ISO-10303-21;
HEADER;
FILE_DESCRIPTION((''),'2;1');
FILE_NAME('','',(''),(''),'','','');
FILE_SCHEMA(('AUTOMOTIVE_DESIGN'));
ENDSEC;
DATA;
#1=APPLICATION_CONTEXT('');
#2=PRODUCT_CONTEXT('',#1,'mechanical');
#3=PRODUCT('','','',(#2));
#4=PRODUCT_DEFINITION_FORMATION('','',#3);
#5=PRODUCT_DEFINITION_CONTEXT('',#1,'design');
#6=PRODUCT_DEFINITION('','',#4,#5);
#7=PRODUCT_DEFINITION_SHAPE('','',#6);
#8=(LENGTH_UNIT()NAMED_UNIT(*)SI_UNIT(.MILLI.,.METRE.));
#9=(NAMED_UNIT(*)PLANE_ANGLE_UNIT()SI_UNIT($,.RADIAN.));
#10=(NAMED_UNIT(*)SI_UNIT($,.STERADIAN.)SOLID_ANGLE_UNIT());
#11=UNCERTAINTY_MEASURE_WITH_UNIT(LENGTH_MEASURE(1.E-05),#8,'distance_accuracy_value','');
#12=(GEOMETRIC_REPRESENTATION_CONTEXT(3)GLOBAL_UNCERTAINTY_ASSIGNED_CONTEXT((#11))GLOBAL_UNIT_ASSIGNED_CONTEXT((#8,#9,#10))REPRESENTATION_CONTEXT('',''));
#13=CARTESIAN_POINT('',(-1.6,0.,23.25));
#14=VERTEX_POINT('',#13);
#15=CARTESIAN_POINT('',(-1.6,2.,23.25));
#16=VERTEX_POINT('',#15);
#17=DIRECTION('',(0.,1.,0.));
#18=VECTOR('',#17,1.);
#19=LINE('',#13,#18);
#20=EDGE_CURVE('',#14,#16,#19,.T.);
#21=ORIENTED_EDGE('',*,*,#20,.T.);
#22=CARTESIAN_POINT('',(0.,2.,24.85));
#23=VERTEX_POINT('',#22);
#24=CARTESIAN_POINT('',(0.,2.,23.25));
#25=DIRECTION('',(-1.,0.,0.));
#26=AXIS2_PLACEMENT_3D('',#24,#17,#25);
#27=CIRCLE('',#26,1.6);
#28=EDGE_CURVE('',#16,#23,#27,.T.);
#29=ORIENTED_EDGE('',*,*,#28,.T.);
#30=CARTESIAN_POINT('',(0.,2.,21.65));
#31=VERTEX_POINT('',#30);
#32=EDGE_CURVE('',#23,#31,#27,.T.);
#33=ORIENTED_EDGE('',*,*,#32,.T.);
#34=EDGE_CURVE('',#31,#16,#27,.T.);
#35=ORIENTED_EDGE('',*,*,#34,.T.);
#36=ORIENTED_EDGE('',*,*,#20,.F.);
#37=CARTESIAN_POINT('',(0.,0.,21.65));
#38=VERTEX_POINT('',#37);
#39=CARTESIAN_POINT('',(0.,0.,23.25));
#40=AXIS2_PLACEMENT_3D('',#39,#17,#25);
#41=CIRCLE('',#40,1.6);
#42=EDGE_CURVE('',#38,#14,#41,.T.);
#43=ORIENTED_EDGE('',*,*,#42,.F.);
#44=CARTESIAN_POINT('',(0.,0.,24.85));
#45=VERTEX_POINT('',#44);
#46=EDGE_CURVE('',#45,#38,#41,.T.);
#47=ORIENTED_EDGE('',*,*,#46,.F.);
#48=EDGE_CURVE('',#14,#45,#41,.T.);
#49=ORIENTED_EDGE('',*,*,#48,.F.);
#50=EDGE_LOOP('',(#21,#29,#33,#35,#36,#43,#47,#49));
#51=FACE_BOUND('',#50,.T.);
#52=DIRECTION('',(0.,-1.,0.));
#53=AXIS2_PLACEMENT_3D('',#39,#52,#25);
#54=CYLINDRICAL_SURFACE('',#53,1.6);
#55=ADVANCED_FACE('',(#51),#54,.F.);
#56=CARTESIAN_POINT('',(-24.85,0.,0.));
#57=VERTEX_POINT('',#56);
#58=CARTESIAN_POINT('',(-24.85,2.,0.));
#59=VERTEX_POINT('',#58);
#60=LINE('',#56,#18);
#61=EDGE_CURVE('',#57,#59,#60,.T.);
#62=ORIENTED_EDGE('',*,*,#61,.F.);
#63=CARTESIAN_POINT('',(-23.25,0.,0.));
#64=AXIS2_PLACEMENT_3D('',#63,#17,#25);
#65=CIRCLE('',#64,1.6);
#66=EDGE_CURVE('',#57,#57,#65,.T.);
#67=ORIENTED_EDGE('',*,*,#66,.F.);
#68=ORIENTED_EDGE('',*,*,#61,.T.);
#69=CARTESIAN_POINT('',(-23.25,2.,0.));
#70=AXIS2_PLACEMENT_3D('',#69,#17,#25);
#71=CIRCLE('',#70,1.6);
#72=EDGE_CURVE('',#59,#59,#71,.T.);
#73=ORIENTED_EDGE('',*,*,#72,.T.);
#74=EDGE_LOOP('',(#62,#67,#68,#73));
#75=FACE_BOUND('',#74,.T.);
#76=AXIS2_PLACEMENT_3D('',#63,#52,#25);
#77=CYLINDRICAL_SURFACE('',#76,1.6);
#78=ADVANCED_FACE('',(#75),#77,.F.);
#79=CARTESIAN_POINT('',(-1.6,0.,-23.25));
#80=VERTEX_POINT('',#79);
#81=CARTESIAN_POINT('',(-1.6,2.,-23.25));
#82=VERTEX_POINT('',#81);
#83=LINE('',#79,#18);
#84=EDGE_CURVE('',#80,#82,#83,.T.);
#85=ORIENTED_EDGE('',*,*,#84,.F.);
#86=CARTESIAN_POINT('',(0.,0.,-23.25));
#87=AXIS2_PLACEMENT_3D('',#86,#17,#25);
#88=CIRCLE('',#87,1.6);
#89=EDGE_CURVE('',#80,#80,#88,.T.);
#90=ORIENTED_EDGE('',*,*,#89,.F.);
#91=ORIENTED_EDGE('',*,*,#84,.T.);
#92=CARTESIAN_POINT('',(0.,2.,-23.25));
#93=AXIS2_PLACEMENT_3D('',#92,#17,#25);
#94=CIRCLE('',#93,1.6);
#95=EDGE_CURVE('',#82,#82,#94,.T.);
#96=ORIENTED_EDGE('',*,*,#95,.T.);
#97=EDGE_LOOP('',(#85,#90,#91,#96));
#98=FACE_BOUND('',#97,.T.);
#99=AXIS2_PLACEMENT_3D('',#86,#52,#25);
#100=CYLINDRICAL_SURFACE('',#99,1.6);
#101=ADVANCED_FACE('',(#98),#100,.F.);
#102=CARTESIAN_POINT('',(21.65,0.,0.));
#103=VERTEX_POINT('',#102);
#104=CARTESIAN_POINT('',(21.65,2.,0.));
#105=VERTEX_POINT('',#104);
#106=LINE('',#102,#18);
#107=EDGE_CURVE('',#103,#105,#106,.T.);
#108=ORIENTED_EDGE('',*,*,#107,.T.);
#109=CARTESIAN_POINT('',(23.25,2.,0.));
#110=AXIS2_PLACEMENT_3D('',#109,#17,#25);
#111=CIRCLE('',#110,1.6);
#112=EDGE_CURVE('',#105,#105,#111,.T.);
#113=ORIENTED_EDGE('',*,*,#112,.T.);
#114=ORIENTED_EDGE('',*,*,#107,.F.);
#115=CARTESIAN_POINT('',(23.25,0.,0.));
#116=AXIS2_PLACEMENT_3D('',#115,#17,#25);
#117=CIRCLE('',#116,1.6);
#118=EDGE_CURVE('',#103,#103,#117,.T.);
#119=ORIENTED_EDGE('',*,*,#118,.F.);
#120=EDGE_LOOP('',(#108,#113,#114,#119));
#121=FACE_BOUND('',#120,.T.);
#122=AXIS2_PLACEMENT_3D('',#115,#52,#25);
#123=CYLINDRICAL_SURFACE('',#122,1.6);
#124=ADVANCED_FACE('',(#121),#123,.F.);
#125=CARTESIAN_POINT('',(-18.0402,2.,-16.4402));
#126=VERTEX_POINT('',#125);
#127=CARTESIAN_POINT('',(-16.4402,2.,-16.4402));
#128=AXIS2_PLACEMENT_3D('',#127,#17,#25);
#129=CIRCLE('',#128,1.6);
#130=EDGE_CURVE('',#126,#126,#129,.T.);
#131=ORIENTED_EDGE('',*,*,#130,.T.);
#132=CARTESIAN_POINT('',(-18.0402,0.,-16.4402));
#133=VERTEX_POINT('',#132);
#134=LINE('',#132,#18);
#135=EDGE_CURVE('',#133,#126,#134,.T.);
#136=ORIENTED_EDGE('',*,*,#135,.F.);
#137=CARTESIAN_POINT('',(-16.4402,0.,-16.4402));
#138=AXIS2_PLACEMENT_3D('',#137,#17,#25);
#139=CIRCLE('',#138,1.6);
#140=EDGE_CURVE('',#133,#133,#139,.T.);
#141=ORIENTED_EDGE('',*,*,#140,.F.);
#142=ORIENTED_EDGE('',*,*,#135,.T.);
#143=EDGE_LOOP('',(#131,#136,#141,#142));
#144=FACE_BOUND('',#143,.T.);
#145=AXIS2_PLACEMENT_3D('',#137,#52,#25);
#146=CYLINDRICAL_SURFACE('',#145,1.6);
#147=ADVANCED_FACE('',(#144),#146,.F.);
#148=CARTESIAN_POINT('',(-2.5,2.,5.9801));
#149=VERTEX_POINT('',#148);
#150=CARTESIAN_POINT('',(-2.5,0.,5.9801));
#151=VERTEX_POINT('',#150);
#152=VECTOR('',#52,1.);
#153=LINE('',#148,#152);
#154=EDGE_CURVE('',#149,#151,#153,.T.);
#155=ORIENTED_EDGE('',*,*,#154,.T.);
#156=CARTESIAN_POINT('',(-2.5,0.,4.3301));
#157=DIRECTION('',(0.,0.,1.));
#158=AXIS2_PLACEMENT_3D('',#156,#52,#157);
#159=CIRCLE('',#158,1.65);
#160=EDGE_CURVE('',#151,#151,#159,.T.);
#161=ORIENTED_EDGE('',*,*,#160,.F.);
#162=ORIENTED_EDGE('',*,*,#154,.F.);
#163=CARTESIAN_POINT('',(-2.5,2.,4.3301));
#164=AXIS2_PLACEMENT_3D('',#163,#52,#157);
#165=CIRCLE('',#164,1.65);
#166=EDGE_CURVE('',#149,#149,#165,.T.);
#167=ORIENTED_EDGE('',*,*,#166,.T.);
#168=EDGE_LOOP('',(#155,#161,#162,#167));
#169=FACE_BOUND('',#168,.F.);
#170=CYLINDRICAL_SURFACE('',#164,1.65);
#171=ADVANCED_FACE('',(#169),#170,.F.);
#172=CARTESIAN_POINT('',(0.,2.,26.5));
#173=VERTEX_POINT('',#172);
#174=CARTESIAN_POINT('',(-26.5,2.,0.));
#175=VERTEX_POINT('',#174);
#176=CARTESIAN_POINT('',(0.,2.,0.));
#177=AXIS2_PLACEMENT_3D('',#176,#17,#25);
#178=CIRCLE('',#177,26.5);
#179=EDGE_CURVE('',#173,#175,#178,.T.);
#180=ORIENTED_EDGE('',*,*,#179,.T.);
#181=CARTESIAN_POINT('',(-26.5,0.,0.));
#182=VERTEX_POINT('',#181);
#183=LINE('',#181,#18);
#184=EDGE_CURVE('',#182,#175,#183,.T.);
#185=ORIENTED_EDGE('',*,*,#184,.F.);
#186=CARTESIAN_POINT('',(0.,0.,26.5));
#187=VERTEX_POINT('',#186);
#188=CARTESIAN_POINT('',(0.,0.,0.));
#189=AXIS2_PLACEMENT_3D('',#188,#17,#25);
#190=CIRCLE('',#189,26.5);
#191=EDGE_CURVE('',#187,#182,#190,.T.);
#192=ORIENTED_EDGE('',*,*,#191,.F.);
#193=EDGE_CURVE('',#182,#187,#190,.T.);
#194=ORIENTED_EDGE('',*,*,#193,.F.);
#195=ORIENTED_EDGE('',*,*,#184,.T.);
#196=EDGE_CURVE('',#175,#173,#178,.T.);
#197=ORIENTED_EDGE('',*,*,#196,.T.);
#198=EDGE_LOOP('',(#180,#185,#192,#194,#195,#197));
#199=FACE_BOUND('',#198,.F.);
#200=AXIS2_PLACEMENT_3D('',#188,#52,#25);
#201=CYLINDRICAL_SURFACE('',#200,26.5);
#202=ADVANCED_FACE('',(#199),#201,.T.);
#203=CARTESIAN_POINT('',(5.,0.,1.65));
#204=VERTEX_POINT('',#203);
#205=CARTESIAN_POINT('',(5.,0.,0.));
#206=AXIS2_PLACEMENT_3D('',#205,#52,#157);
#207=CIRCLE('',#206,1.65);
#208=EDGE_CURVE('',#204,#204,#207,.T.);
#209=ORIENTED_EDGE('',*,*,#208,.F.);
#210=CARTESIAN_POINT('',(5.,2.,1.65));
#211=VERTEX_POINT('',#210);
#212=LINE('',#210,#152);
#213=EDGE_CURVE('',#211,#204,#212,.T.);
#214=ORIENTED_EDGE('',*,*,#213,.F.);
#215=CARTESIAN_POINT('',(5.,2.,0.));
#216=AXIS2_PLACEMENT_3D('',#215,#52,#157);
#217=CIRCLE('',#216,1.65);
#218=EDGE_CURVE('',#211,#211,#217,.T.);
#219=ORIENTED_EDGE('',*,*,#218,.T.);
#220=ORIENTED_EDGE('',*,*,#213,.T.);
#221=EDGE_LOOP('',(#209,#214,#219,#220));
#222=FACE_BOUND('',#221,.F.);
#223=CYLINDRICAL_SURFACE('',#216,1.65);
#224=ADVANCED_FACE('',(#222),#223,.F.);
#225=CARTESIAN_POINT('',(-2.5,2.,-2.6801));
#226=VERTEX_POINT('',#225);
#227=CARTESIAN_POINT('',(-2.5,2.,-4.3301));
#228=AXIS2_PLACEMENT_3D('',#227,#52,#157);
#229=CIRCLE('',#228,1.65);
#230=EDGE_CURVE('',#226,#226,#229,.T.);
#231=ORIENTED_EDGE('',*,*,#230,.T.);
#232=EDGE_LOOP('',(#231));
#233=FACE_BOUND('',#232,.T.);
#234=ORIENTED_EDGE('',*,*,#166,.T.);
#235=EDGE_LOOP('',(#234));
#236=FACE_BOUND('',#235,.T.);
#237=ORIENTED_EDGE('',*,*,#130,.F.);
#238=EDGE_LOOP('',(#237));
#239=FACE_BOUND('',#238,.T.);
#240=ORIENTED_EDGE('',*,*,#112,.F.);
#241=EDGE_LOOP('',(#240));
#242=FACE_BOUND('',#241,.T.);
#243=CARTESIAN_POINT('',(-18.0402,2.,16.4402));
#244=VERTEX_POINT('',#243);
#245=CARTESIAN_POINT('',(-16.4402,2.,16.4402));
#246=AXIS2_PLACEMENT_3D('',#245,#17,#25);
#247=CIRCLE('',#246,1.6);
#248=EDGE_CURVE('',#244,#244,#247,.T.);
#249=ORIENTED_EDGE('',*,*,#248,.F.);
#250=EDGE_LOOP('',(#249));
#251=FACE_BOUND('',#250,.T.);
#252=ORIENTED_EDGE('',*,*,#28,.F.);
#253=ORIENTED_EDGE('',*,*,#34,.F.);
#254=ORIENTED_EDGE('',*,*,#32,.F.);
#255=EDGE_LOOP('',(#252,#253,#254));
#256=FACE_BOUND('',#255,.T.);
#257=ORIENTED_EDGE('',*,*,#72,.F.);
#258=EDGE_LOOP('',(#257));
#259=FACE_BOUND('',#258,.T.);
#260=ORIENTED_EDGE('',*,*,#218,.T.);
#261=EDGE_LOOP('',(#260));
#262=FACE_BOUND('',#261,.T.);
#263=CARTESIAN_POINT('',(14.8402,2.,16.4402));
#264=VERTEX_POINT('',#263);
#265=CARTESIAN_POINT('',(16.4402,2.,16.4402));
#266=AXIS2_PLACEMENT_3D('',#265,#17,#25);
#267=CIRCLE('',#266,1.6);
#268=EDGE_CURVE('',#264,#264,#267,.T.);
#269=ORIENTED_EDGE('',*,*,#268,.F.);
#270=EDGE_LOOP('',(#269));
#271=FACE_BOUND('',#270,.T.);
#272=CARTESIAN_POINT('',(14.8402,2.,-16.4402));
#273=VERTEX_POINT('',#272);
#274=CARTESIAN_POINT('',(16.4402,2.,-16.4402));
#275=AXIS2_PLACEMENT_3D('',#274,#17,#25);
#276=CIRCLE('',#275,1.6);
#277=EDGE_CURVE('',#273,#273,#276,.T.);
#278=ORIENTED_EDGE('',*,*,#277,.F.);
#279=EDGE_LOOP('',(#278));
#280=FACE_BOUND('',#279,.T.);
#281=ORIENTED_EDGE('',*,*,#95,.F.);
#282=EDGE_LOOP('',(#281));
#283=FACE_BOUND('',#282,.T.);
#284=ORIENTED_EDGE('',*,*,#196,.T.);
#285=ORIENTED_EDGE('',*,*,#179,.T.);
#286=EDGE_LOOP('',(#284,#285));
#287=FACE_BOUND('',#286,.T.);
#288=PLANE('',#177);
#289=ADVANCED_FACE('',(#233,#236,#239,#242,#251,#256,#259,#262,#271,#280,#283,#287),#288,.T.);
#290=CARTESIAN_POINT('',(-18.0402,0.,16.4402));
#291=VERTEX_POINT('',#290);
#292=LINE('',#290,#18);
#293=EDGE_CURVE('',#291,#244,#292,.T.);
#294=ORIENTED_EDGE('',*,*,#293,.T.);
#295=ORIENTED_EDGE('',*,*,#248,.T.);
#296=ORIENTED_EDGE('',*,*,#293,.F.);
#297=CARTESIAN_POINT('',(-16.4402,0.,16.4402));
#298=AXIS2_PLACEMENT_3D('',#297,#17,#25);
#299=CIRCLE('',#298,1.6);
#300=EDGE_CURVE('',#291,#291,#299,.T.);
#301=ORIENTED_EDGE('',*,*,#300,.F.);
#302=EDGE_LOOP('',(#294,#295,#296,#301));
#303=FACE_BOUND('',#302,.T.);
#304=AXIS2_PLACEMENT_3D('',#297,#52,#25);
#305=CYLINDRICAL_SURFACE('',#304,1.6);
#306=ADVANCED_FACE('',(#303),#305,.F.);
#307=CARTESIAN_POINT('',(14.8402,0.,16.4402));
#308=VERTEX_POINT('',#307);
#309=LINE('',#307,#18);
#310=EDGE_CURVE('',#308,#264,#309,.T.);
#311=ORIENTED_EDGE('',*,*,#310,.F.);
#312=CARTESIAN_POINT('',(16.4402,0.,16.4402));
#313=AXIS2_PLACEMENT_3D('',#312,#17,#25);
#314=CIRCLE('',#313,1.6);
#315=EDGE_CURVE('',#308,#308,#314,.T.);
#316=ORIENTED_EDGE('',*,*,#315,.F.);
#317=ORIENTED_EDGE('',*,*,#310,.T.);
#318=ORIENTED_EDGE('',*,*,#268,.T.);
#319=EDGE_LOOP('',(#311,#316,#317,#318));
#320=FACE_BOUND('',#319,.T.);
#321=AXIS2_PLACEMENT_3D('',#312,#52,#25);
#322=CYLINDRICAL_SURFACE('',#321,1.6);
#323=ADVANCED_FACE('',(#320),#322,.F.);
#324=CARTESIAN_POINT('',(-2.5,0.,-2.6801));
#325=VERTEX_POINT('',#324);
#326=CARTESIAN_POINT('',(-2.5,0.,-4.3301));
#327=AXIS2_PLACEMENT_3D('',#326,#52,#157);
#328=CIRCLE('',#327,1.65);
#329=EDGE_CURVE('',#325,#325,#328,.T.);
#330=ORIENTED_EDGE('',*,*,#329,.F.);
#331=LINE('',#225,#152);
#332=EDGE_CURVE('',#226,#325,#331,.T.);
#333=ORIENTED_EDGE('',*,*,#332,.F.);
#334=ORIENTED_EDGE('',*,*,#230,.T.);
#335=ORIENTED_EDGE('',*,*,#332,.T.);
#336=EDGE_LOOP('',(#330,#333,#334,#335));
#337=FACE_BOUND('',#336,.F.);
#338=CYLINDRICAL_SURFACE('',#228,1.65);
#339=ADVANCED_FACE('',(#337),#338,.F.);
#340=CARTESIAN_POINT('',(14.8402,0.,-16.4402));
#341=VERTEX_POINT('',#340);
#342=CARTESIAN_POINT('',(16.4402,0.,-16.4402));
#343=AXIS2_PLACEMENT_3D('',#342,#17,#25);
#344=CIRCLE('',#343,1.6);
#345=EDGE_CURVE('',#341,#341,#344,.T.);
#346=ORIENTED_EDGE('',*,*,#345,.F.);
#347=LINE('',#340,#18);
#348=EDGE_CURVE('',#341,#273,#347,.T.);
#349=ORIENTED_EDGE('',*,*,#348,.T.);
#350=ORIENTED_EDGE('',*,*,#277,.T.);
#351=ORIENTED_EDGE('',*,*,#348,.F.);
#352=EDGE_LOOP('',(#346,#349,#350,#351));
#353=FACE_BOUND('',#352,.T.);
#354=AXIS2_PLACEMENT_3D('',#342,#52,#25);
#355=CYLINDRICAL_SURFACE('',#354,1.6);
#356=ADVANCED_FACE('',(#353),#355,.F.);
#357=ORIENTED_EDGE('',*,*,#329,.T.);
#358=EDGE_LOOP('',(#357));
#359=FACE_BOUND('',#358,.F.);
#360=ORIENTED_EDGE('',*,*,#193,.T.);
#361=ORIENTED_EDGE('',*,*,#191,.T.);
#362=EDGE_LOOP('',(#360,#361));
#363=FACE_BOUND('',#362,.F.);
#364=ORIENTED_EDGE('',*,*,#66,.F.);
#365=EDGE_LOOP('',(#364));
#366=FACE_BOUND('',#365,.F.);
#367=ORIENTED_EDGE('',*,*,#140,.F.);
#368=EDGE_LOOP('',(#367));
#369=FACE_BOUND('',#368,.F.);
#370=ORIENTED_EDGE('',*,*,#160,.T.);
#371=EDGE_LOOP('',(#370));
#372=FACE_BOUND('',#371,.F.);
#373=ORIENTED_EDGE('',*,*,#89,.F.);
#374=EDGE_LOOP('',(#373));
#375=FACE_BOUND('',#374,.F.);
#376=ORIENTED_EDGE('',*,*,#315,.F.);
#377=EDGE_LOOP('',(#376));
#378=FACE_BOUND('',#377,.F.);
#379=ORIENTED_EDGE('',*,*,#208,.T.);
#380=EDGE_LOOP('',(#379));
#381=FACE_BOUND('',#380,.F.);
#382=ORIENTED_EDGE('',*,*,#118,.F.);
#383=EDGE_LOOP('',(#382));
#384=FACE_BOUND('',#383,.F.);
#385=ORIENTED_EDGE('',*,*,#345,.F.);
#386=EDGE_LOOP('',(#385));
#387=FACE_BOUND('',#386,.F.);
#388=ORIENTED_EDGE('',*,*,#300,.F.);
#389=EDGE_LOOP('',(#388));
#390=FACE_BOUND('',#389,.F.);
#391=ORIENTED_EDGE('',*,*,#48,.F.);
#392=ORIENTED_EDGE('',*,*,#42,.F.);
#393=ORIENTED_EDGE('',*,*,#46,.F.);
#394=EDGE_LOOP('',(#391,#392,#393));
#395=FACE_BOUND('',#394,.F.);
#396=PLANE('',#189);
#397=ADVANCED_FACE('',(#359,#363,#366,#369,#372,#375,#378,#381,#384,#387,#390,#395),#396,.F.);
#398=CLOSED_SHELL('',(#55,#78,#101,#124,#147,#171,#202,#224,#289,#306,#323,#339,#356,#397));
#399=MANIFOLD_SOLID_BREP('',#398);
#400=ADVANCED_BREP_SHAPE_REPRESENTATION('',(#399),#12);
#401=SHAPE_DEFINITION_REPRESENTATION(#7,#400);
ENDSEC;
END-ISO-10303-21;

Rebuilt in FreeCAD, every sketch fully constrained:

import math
import FreeCAD as App
import Part
import Sketcher
from FreeCAD import Vector
Q = App.Units.Quantity

doc = App.newDocument("Part")
body = doc.addObject("PartDesign::Body", "Body")

# Sketch on XZ plane
sketch1 = body.newObject("Sketcher::SketchObject", "Sketch")
sketch1.AttachmentSupport = (doc.getObject("XZ_Plane"), [""])
sketch1.MapMode = "FlatFace"
sketch1.addGeometry([
    Part.Circle(Vector(0, 0, 0), Vector(0, 0, 1), 26.5),  # 0
    Part.Circle(Vector(16.4402, -16.4402, 0), Vector(0, 0, 1), 1.6),  # 1
    Part.Circle(Vector(0, -23.25, 0), Vector(0, 0, 1), 1.6),  # 2
    Part.Circle(Vector(-16.4402, -16.4402, 0), Vector(0, 0, 1), 1.6),  # 3
    Part.Circle(Vector(23.25, 0, 0), Vector(0, 0, 1), 1.6),  # 4
    Part.Circle(Vector(16.4402, 16.4402, 0), Vector(0, 0, 1), 1.6),  # 5
    Part.Circle(Vector(-23.25, 0, 0), Vector(0, 0, 1), 1.6),  # 6
    Part.ArcOfCircle(Part.Circle(Vector(0, 23.25, 0), Vector(0, 0, 1), 1.6), math.radians(-90), math.radians(90)),  # 7
    Part.ArcOfCircle(Part.Circle(Vector(0, 23.25, 0), Vector(0, 0, 1), 1.6), math.radians(90), math.radians(270)),  # 8
    Part.Circle(Vector(-16.4402, 16.4402, 0), Vector(0, 0, 1), 1.6),  # 9
], False)
sketch1.addConstraint([
    Sketcher.Constraint("Tangent", 7, 1, 8, 2),
    Sketcher.Constraint("Coincident", 8, 1, 7, 2),
    Sketcher.Constraint("Coincident", 0, 3, -1, 1),
    Sketcher.Constraint("Equal", 1, 2),
    Sketcher.Constraint("Equal", 2, 3),
    Sketcher.Constraint("Equal", 3, 4),
    Sketcher.Constraint("Equal", 4, 5),
    Sketcher.Constraint("Equal", 5, 6),
    Sketcher.Constraint("Equal", 6, 7),
    Sketcher.Constraint("Equal", 8, 9),
    Sketcher.Constraint("Symmetric", 3, 3, 5, 3, -1, 1),
    Sketcher.Constraint("Symmetric", 4, 3, 6, 3, -1, 1),
    Sketcher.Constraint("Symmetric", 2, 3, 7, 3, -1, 1),
    Sketcher.Constraint("Symmetric", 1, 3, 9, 3, -1, 1),
    Sketcher.Constraint("Symmetric", 1, 3, 3, 3, -2),
    Sketcher.Constraint("PointOnObject", 2, 3, -2),
    Sketcher.Constraint("PointOnObject", 4, 3, -1),
    Sketcher.Constraint("PointOnObject", 7, 1, -2),
    Sketcher.Constraint("PointOnObject", 8, 1, -2),
    Sketcher.Constraint("Diameter", 0, Q("53 mm")),
    Sketcher.Constraint("Diameter", 1, Q("3.2 mm")),
    Sketcher.Constraint("DistanceY", 2, 3, -1, 1, Q("23.25 mm")),
    Sketcher.Constraint("DistanceX", -1, 1, 4, 3, Q("23.25 mm")),
    Sketcher.Constraint("DistanceX", -1, 1, 1, 3, Q("16.4402 mm")),
    Sketcher.Constraint("DistanceY", 1, 3, -1, 1, Q("16.4402 mm")),
])
pad1 = body.newObject("PartDesign::Pad", "Pad")
pad1.Profile = sketch1
pad1.Length = 2
pad1.Reversed = True

# Sketch on XZ plane
sketch2 = body.newObject("Sketcher::SketchObject", "Sketch001")
sketch2.AttachmentSupport = (doc.getObject("XZ_Plane"), [""])
sketch2.MapMode = "FlatFace"
sketch2.AttachmentOffset = App.Placement(Vector(0, 0, -2), App.Rotation())
sketch2.addGeometry([
    Part.Circle(Vector(5, 0, 0), Vector(0, 0, 1), 1.65),
    Part.Circle(Vector(-2.5, -4.3301, 0), Vector(0, 0, 1), 1.65),
    Part.Circle(Vector(-2.5, 4.3301, 0), Vector(0, 0, 1), 1.65),
], False)
sketch2.addConstraint([
    Sketcher.Constraint("Equal", 0, 1),
    Sketcher.Constraint("Equal", 1, 2),
    Sketcher.Constraint("Symmetric", 1, 3, 2, 3, -1),
    Sketcher.Constraint("PointOnObject", 0, 3, -1),
    Sketcher.Constraint("Diameter", 0, Q("3.3 mm")),
    Sketcher.Constraint("DistanceX", -1, 1, 0, 3, Q("5 mm")),
    Sketcher.Constraint("DistanceX", 1, 3, -1, 1, Q("2.5 mm")),
    Sketcher.Constraint("DistanceY", 1, 3, -1, 1, Q("4.33 mm")),
])
doc.recompute()
hole = body.newObject("PartDesign::Hole", "Hole")
hole.Profile = sketch2
hole.ThreadType = "None"
hole.Diameter = 3.3
hole.DepthType = "ThroughAll"
hole.Reversed = True

doc.recompute()
